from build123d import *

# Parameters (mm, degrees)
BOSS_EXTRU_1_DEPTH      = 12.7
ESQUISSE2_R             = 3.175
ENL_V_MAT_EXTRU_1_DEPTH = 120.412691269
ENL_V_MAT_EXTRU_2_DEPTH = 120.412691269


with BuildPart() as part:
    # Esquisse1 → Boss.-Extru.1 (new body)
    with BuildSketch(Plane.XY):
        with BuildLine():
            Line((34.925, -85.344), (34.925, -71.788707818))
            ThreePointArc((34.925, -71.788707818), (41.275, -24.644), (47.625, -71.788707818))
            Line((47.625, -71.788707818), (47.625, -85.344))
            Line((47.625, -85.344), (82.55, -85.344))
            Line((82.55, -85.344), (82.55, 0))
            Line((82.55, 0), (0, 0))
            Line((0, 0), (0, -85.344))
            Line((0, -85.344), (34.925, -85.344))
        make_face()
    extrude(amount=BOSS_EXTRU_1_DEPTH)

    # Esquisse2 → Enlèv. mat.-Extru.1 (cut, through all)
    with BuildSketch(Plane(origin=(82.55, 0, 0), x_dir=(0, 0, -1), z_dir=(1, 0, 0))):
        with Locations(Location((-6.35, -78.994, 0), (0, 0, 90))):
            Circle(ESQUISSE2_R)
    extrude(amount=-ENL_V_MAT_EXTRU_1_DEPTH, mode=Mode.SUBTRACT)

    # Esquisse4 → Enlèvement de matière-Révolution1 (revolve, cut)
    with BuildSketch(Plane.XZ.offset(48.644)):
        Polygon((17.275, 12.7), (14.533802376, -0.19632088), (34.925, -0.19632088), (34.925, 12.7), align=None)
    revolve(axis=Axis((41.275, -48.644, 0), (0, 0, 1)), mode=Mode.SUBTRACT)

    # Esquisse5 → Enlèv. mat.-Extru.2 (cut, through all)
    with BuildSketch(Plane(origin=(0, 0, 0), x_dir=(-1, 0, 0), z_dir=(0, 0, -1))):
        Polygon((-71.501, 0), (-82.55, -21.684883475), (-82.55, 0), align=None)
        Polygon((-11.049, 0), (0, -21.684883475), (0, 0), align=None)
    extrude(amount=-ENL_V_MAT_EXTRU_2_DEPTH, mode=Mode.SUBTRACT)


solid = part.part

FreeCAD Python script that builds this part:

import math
import FreeCAD as App
import Part
import Sketcher
from FreeCAD import Vector
Q = App.Units.Quantity


def add_polygon(sketch, points):
    """Adds a closed chain of lines whose ends are joined by coincident constraints."""
    first, n = sketch.GeometryCount, len(points)
    for a, b in zip(points, points[1:] + points[:1]):
        sketch.addGeometry(Part.LineSegment(App.Vector(*a, 0), App.Vector(*b, 0)), False)
    for i in range(n):
        sketch.addConstraint(Sketcher.Constraint("Coincident", first + i, 2, first + (i + 1) % n, 1))

doc = App.newDocument("Part")
body = doc.addObject("PartDesign::Body", "Body")

# Sketch on XY plane
sketch1 = body.newObject("Sketcher::SketchObject", "Sketch")
sketch1.AttachmentSupport = (doc.getObject("XY_Plane"), [""])
sketch1.MapMode = "FlatFace"
sketch1.addGeometry(Part.LineSegment(Vector(35, -85, 0), Vector(35, -72, 0)), False)
sketch1.addGeometry(Part.ArcOfCircle(Part.Circle(Vector(41, -49, 0), Vector(0, 0, 1), 24), math.radians(-75), math.radians(255)), False)
sketch1.addGeometry(Part.LineSegment(Vector(48, -72, 0), Vector(48, -85, 0)), False)
sketch1.addGeometry(Part.LineSegment(Vector(48, -85, 0), Vector(83, -85, 0)), False)
sketch1.addGeometry(Part.LineSegment(Vector(83, -85, 0), Vector(83, 0, 0)), False)
sketch1.addGeometry(Part.LineSegment(Vector(83, 0, 0), Vector(0, 0, 0)), False)
sketch1.addGeometry(Part.LineSegment(Vector(0, 0, 0), Vector(0, -85, 0)), False)
sketch1.addGeometry(Part.LineSegment(Vector(0, -85, 0), Vector(35, -85, 0)), False)
sketch1.addConstraint(Sketcher.Constraint("Coincident", 0, 2, 1, 2))
sketch1.addConstraint(Sketcher.Constraint("Coincident", 1, 1, 2, 1))
sketch1.addConstraint(Sketcher.Constraint("Coincident", 2, 2, 3, 1))
sketch1.addConstraint(Sketcher.Constraint("Coincident", 3, 2, 4, 1))
sketch1.addConstraint(Sketcher.Constraint("Coincident", 4, 2, 5, 1))
sketch1.addConstraint(Sketcher.Constraint("Coincident", 5, 2, 6, 1))
sketch1.addConstraint(Sketcher.Constraint("Coincident", 6, 2, 7, 1))
sketch1.addConstraint(Sketcher.Constraint("Coincident", 7, 2, 0, 1))
sketch1.addConstraint(Sketcher.Constraint("Vertical", 0))
sketch1.addConstraint(Sketcher.Constraint("Vertical", 2))
sketch1.addConstraint(Sketcher.Constraint("Horizontal", 3))
sketch1.addConstraint(Sketcher.Constraint("Vertical", 4))
sketch1.addConstraint(Sketcher.Constraint("Horizontal", 5))
sketch1.addConstraint(Sketcher.Constraint("Vertical", 6))
sketch1.addConstraint(Sketcher.Constraint("Horizontal", 7))
sketch1.addConstraint(Sketcher.Constraint("Coincident", 5, 2, -1, 1))
sketch1.addConstraint(Sketcher.Constraint("Horizontal", 0, 2, 1, 1))
sketch1.addConstraint(Sketcher.Constraint("Horizontal", 3, 2, 6, 2))
sketch1.addConstraint(Sketcher.Constraint("Equal", 3, 7))
sketch1.addConstraint(Sketcher.Constraint("DistanceX", 5, 2, 5, 1, Q("3.25 in")))
sketch1.addConstraint(Sketcher.Constraint("DistanceY", 4, 1, 4, 2, Q("3.36 in")))
sketch1.addConstraint(Sketcher.Constraint("DistanceX", 0, 2, 1, 1, Q("0.5 in")))
sketch1.addConstraint(Sketcher.Constraint("Radius", 1, Q("24 mm")))
sketch1.addConstraint(Sketcher.Constraint("DistanceY", 1, 3, -1, 1, Q("48.644 mm")))
pad1 = body.newObject("PartDesign::Pad", "Pad")
pad1.Profile = sketch1
pad1.Length = Q("0.5 in")

# Sketch on YZ plane
sketch2 = body.newObject("Sketcher::SketchObject", "Sketch001")
sketch2.AttachmentSupport = (doc.getObject("YZ_Plane"), [""])
sketch2.MapMode = "FlatFace"
sketch2.AttachmentOffset = App.Placement(Vector(0, 0, 3.25 * 25.4), App.Rotation())
sketch2.addGeometry(Part.Circle(Vector(-79, 6.3, 0), Vector(0, 0, 1), 3.2), False)
sketch2.addConstraint(Sketcher.Constraint("Diameter", 0, Q("0.25 in")))
sketch2.addConstraint(Sketcher.Constraint("DistanceX", 0, 3, -1, 1, Q("3.11 in")))
sketch2.addConstraint(Sketcher.Constraint("DistanceY", -1, 1, 0, 3, Q("0.25 in")))
pocket1 = body.newObject("PartDesign::Pocket", "Pocket")
pocket1.Profile = sketch2
pocket1.Type = "ThroughAll"

# Sketch on XZ plane
sketch3 = body.newObject("Sketcher::SketchObject", "Sketch002")
sketch3.AttachmentSupport = (doc.getObject("XZ_Plane"), [""])
sketch3.MapMode = "FlatFace"
sketch3.AttachmentOffset = App.Placement(Vector(0, 0, 48.644), App.Rotation())
add_polygon(sketch3, [(17, 13), (15, 0), (35, 0), (35, 13)])  # lines 0-3
sketch3.addGeometry(Part.LineSegment(Vector(41, 0, 0), Vector(41, 13, 0)), True)  # axis
sketch3.addConstraint(Sketcher.Constraint("Horizontal", 1))
sketch3.addConstraint(Sketcher.Constraint("Vertical", 2))
sketch3.addConstraint(Sketcher.Constraint("Horizontal", 3))
sketch3.addConstraint(Sketcher.Constraint("Vertical", 4))
sketch3.addConstraint(Sketcher.Constraint("Horizontal", 1, 2, 4, 1))
sketch3.addConstraint(Sketcher.Constraint("Horizontal", 3, 2, 4, 2))
sketch3.addConstraint(Sketcher.Constraint("Angle", 0, Q("-102 deg")))
sketch3.addConstraint(Sketcher.Constraint("DistanceY", -1, 1, 2, 2, Q("0.5 in")))
sketch3.addConstraint(Sketcher.Constraint("DistanceX", 1, 2, 4, 1, Q("0.25 in")))
sketch3.addConstraint(Sketcher.Constraint("DistanceX", -1, 1, 1, 2, Q("1.375 in")))
sketch3.addConstraint(Sketcher.Constraint("DistanceX", 3, 2, 3, 1, Q("17.65 mm")))
sketch3.addConstraint(Sketcher.Constraint("DistanceY", 2, 1, 2, 2, Q("12.896321 mm")))
groove = body.newObject("PartDesign::Groove", "Groove")
groove.Profile = sketch3
groove.ReferenceAxis = (sketch3, ["Axis0"])
groove.Angle = 360

# Sketch on XY plane
sketch4 = body.newObject("Sketcher::SketchObject", "Sketch003")
sketch4.AttachmentSupport = (doc.getObject("XY_Plane"), [""])
sketch4.MapMode = "FlatFace"
add_polygon(sketch4, [(83, -22), (72, 0), (83, 0)])  # lines 0-2
add_polygon(sketch4, [(11, 0), (0, -22), (0, 0)])  # lines 3-5
sketch4.addConstraint(Sketcher.Constraint("Horizontal", 1))
sketch4.addConstraint(Sketcher.Constraint("Vertical", 2))
sketch4.addConstraint(Sketcher.Constraint("Vertical", 4))
sketch4.addConstraint(Sketcher.Constraint("Horizontal", 5))
sketch4.addConstraint(Sketcher.Constraint("Coincident", 4, 2, -1, 1))
sketch4.addConstraint(Sketcher.Constraint("PointOnObject", 0, 2, -1))
sketch4.addConstraint(Sketcher.Constraint("Horizontal", 2, 2, 3, 2))
sketch4.addConstraint(Sketcher.Constraint("Equal", 1, 5))
sketch4.addConstraint(Sketcher.Constraint("Angle", 0, Q("117 deg")))
sketch4.addConstraint(Sketcher.Constraint("DistanceX", 1, 1, 1, 2, Q("0.435 in")))
sketch4.addConstraint(Sketcher.Constraint("DistanceX", -1, 1, 1, 2, Q("3.25 in")))
pocket2 = body.newObject("PartDesign::Pocket", "Pocket001")
pocket2.Profile = sketch4
pocket2.Type = "ThroughAll"
pocket2.Reversed = True

doc.recompute()
